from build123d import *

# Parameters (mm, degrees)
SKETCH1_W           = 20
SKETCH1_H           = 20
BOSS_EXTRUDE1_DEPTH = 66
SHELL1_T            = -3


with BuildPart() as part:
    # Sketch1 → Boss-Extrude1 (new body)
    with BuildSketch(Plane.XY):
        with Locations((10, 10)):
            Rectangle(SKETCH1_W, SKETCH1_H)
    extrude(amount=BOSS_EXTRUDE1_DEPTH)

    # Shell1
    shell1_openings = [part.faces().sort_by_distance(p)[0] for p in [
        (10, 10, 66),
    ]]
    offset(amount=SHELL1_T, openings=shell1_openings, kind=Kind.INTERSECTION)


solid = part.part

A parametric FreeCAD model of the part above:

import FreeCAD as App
import Part
import Sketcher


def faces_at(feature, points):
    """Names of the faces that lie closest to the given points."""
    faces = feature.Shape.Faces
    near = lambda p: min(range(len(faces)), key=lambda i: faces[i].distToShape(Part.Vertex(*p))[0])
    return sorted({f"Face{near(p) + 1}" for p in points})

doc = App.newDocument("Part")
body = doc.addObject("PartDesign::Body", "Body")

sketch1 = body.newObject("Sketcher::SketchObject", "Sketch")
sketch1.AttachmentSupport = (doc.getObject("XY_Plane"), [""])
sketch1.MapMode = "FlatFace"
sketch1.addGeometry([
    Part.LineSegment(App.Vector(0, 20, 0), App.Vector(0, 0, 0)),
    Part.LineSegment(App.Vector(0, 0, 0), App.Vector(20, 0, 0)),
    Part.LineSegment(App.Vector(20, 0, 0), App.Vector(20, 20, 0)),
    Part.LineSegment(App.Vector(20, 20, 0), App.Vector(0, 20, 0)),
], False)
sketch1.addConstraint([
    Sketcher.Constraint("Coincident", 0, 2, 1, 1),
    Sketcher.Constraint("Coincident", 1, 2, 2, 1),
    Sketcher.Constraint("Coincident", 2, 2, 3, 1),
    Sketcher.Constraint("Coincident", 3, 2, 0, 1),
    Sketcher.Constraint("Vertical", 0),
    Sketcher.Constraint("Horizontal", 1),
    Sketcher.Constraint("Vertical", 2),
    Sketcher.Constraint("Horizontal", 3),
    Sketcher.Constraint("Coincident", 0, 2, -1, 1),
    Sketcher.Constraint("Equal", 3, 0),
    Sketcher.Constraint("DistanceX", 1, 1, 1, 2, 20.0),
])
pad1 = body.newObject("PartDesign::Pad", "Pad")
pad1.Profile = sketch1
pad1.Length = 66
doc.recompute()

thickness = body.newObject("PartDesign::Thickness", "Thickness")
thickness.Base = (pad1, faces_at(pad1, [(10, 10, 66)]))
thickness.Value = 3
thickness.Reversed = True
thickness.Join = "Intersection"

doc.recompute()
